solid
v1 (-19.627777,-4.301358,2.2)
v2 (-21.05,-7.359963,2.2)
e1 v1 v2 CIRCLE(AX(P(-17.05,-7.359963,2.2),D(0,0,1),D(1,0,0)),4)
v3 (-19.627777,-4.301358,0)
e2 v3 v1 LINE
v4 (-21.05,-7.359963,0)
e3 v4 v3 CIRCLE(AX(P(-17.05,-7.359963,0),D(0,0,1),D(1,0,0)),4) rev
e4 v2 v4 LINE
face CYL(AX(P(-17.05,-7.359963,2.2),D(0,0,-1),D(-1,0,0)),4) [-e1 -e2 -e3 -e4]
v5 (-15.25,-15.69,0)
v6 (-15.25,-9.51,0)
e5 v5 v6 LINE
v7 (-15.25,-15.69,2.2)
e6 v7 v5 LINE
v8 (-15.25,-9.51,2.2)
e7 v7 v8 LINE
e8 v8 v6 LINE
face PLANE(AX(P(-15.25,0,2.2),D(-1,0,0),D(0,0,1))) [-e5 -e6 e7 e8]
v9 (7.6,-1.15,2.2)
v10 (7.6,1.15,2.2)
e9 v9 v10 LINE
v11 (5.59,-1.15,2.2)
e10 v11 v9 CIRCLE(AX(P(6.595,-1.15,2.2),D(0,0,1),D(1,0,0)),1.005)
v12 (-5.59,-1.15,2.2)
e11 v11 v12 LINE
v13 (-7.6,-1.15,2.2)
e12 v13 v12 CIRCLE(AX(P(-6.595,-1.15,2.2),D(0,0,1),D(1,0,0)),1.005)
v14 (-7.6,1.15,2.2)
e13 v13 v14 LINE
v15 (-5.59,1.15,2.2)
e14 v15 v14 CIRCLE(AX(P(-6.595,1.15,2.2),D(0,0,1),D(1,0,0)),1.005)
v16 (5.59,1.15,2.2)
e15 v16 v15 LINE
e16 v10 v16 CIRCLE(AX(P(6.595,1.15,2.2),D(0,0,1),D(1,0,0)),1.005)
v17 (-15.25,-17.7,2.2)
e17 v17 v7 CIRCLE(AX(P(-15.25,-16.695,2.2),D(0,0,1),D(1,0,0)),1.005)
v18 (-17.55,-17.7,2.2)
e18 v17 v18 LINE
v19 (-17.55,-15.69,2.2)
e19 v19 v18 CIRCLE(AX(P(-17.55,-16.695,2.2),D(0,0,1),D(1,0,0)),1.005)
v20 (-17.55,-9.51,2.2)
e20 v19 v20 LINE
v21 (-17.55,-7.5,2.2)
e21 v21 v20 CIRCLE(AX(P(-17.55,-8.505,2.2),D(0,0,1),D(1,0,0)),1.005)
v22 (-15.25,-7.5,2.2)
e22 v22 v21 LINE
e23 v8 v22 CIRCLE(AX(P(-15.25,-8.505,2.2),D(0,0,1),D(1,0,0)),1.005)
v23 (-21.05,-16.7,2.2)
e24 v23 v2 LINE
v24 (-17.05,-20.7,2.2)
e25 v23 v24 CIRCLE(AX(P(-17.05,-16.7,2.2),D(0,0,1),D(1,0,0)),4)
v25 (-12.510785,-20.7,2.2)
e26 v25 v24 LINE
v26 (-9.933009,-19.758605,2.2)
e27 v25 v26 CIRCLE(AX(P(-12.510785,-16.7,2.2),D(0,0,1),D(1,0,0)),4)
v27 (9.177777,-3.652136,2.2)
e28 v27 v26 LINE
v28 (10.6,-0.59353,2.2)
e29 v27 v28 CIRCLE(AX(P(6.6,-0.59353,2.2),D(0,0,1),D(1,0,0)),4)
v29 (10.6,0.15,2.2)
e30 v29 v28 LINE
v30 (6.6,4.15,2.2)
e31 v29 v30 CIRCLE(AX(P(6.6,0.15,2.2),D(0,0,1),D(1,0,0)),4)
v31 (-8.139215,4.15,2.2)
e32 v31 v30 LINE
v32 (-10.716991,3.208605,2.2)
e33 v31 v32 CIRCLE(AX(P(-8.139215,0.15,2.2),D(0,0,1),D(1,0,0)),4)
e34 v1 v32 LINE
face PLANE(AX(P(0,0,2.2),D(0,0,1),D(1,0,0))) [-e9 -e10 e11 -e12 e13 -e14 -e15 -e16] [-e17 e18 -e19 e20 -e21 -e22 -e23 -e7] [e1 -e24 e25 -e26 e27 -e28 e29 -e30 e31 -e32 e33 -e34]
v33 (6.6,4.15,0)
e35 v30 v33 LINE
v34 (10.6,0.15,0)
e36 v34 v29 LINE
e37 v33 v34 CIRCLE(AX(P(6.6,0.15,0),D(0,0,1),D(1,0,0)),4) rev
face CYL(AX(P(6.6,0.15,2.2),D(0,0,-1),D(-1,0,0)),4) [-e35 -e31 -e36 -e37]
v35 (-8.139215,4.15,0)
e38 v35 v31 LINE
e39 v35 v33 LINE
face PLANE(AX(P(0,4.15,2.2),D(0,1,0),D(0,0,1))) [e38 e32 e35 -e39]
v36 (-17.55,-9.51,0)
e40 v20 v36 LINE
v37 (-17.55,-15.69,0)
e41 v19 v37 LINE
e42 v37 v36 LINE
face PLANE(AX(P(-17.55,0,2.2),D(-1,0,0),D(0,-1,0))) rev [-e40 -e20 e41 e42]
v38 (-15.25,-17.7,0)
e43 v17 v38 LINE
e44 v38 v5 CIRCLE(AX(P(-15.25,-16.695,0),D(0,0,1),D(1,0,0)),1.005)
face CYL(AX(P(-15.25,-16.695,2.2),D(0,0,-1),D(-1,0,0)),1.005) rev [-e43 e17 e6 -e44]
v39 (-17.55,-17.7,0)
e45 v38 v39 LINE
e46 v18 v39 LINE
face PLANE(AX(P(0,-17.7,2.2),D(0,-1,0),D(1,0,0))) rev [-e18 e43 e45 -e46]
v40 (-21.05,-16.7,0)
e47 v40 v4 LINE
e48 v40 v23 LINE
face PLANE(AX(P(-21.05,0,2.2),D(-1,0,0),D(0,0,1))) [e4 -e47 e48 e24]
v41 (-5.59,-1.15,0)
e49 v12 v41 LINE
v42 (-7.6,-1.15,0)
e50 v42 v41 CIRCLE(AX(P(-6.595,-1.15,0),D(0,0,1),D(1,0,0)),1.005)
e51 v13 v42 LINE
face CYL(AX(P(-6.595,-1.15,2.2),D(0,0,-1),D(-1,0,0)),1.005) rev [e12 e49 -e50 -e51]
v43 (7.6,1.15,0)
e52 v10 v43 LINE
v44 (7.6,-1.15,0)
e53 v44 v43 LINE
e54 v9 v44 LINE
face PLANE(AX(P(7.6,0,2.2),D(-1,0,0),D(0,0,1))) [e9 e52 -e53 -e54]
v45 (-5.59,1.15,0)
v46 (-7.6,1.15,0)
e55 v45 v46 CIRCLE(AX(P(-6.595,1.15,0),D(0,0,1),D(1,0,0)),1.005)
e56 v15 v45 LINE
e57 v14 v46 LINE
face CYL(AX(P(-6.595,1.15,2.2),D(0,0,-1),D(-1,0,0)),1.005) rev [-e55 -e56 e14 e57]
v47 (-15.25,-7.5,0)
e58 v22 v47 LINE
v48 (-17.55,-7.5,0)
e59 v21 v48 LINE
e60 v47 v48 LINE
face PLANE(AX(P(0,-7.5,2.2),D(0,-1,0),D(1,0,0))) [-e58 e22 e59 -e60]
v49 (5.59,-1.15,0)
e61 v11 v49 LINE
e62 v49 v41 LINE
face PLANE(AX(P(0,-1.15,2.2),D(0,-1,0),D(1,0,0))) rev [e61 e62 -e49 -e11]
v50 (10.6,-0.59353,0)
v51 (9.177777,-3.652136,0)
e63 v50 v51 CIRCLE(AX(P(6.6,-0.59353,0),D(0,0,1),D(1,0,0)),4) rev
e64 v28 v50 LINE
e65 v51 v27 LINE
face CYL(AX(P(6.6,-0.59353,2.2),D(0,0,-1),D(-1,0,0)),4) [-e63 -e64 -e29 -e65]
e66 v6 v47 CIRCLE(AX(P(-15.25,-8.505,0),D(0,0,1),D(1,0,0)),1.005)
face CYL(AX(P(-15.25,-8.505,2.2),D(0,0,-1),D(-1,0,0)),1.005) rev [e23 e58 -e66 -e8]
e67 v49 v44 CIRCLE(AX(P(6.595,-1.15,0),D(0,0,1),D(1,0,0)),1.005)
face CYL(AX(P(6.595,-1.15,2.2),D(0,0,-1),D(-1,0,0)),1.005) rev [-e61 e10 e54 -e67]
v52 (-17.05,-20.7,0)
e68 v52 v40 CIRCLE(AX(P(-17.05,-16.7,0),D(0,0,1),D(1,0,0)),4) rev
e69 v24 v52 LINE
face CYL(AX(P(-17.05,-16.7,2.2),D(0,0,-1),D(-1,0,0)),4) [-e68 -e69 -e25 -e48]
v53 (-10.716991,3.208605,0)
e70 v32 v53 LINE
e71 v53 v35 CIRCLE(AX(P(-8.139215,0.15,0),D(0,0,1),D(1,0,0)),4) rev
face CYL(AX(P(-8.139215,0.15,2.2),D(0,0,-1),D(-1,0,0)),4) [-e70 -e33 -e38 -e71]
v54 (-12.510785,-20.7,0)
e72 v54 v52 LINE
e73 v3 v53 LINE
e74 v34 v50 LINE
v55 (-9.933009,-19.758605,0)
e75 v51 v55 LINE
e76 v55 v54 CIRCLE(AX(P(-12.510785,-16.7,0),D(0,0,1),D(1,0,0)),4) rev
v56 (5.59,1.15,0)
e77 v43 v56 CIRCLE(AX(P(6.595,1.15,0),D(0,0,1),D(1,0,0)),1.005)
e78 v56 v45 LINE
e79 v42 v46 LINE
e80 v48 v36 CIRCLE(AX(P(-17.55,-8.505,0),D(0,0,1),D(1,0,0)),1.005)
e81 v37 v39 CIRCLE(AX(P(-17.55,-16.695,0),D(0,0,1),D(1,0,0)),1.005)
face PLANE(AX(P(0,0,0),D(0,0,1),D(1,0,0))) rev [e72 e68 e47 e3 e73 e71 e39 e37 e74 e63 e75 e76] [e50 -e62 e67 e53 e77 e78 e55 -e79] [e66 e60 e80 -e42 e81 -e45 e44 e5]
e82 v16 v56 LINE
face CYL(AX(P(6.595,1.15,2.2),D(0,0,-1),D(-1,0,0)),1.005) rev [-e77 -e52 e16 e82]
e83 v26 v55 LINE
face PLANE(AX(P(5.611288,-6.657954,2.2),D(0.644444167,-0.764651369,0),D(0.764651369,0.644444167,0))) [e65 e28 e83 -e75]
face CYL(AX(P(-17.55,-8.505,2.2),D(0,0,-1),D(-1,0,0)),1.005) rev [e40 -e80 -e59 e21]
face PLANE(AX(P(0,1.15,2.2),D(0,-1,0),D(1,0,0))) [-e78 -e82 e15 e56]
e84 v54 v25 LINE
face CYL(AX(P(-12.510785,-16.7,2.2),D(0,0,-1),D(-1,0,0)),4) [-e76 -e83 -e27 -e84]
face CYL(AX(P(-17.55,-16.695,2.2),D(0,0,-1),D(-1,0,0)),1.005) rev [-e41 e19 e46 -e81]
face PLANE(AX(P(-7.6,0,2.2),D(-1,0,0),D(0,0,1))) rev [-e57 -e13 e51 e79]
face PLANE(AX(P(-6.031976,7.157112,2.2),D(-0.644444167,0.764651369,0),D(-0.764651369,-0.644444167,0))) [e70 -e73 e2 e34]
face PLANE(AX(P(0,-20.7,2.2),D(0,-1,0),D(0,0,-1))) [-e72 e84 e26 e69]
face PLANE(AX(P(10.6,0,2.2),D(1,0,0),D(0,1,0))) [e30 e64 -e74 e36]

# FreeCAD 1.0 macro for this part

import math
import FreeCAD as App
import Part
import Sketcher

V = App.Vector


def edges_at(feature, points):
    """Names of the edges that pass closest to the given points."""
    edges = feature.Shape.Edges
    near = lambda p: min(range(len(edges)), key=lambda i: edges[i].distToShape(Part.Vertex(*p))[0])
    return sorted({f"Edge{near(p) + 1}" for p in points})


def add_polygon(sketch, points):
    """Adds a closed chain of lines whose ends are joined by coincident constraints."""
    first, n = sketch.GeometryCount, len(points)
    for a, b in zip(points, points[1:] + points[:1]):
        sketch.addGeometry(Part.LineSegment(App.Vector(*a, 0), App.Vector(*b, 0)), False)
    for i in range(n):
        sketch.addConstraint(Sketcher.Constraint("Coincident", first + i, 2, first + (i + 1) % n, 1))

doc = App.newDocument("Part")
body = doc.addObject("PartDesign::Body", "Body")

# Sketch on XY plane
sketch1 = body.newObject("Sketcher::SketchObject", "Sketch")
sketch1.AttachmentSupport = (doc.getObject("XY_Plane"), [""])
sketch1.MapMode = "FlatFace"
add_polygon(sketch1, [(10.6, 4.2), (-9.6, 4.2), (-21.1, -5.5), (-21.1, -20.7), (-11.1, -20.7), (10.6, -2.5)])  # lines 0-5
sketch1.addGeometry(Part.ArcOfCircle(Part.Circle(V(-15.2, -16.7, 0), V(0, 0, 1), 1), math.radians(0), math.radians(90)), False)  # 6
sketch1.addGeometry(Part.ArcOfCircle(Part.Circle(V(-15.2, -16.7, 0), V(0, 0, 1), 1), math.radians(-90), math.radians(0)), False)  # 7
sketch1.addGeometry(Part.LineSegment(V(-15.2, -17.7, 0), V(-17.6, -17.7, 0)), False)  # 8
sketch1.addGeometry(Part.ArcOfCircle(Part.Circle(V(-17.6, -16.7, 0), V(0, 0, 1), 1), math.radians(90), math.radians(270)), False)  # 9
sketch1.addGeometry(Part.LineSegment(V(-17.6, -15.7, 0), V(-17.6, -9.5, 0)), False)  # 10
sketch1.addGeometry(Part.ArcOfCircle(Part.Circle(V(-17.6, -8.5, 0), V(0, 0, 1), 1), math.radians(90), math.radians(270)), False)  # 11
sketch1.addGeometry(Part.LineSegment(V(-17.6, -7.5, 0), V(-15.2, -7.5, 0)), False)  # 12
sketch1.addGeometry(Part.ArcOfCircle(Part.Circle(V(-15.2, -8.5, 0), V(0, 0, 1), 1), math.radians(0), math.radians(90)), False)  # 13
sketch1.addGeometry(Part.ArcOfCircle(Part.Circle(V(-15.2, -8.5, 0), V(0, 0, 1), 1), math.radians(-90), math.radians(0)), False)  # 14
sketch1.addGeometry(Part.LineSegment(V(-15.2, -9.5, 0), V(-15.2, -15.7, 0)), False)  # 15
sketch1.addGeometry(Part.ArcOfCircle(Part.Circle(V(6.6, -1.1, 0), V(0, 0, 1), 1), math.radians(180), math.radians(360)), False)  # 16
sketch1.addGeometry(Part.LineSegment(V(5.6, -1.1, 0), V(-5.6, -1.1, 0)), False)  # 17
sketch1.addGeometry(Part.ArcOfCircle(Part.Circle(V(-6.6, -1.1, 0), V(0, 0, 1), 1), math.radians(180), math.radians(360)), False)  # 18
sketch1.addGeometry(Part.LineSegment(V(-7.6, -1.1, 0), V(-7.6, 1.1, 0)), False)  # 19
sketch1.addGeometry(Part.ArcOfCircle(Part.Circle(V(-6.6, 1.1, 0), V(0, 0, 1), 1), math.radians(0), math.radians(180)), False)  # 20
sketch1.addGeometry(Part.LineSegment(V(-5.6, 1.1, 0), V(5.6, 1.1, 0)), False)  # 21
sketch1.addGeometry(Part.ArcOfCircle(Part.Circle(V(6.6, 1.1, 0), V(0, 0, 1), 1), math.radians(0), math.radians(180)), False)  # 22
sketch1.addGeometry(Part.LineSegment(V(7.6, 1.1, 0), V(7.6, -1.1, 0)), False)  # 23
sketch1.addConstraint([
    Sketcher.Constraint("Tangent", 6, 1, 7, 2),
    Sketcher.Constraint("Tangent", 7, 1, 8, 1),
    Sketcher.Constraint("Tangent", 8, 2, 9, 2),
    Sketcher.Constraint("Coincident", 9, 1, 10, 1),
    Sketcher.Constraint("Coincident", 10, 2, 11, 2),
    Sketcher.Constraint("Tangent", 11, 1, 12, 1),
    Sketcher.Constraint("Tangent", 12, 2, 13, 2),
    Sketcher.Constraint("Tangent", 13, 1, 14, 2),
    Sketcher.Constraint("Coincident", 14, 1, 15, 1),
    Sketcher.Constraint("Coincident", 15, 2, 6, 2),
    Sketcher.Constraint("Coincident", 16, 1, 17, 1),
    Sketcher.Constraint("Coincident", 17, 2, 18, 2),
    Sketcher.Constraint("Tangent", 18, 1, 19, 1),
    Sketcher.Constraint("Tangent", 19, 2, 20, 2),
    Sketcher.Constraint("Coincident", 20, 1, 21, 1),
    Sketcher.Constraint("Coincident", 21, 2, 22, 2),
    Sketcher.Constraint("Tangent", 22, 1, 23, 1),
    Sketcher.Constraint("Tangent", 23, 2, 16, 2),
    Sketcher.Constraint("Horizontal", 0),
    Sketcher.Constraint("Vertical", 2),
    Sketcher.Constraint("Horizontal", 3),
    Sketcher.Constraint("Vertical", 5),
    Sketcher.Constraint("Horizontal", 8),
    Sketcher.Constraint("Vertical", 10),
    Sketcher.Constraint("Horizontal", 12),
    Sketcher.Constraint("Vertical", 15),
    Sketcher.Constraint("Horizontal", 17),
    Sketcher.Constraint("Vertical", 19),
    Sketcher.Constraint("Horizontal", 21),
    Sketcher.Constraint("Vertical", 23),
    Sketcher.Constraint("Equal", 6, 7),
    Sketcher.Constraint("Equal", 7, 9),
    Sketcher.Constraint("Equal", 9, 11),
    Sketcher.Constraint("Equal", 11, 13),
    Sketcher.Constraint("Equal", 13, 14),
    Sketcher.Constraint("Equal", 14, 16),
    Sketcher.Constraint("Equal", 16, 18),
    Sketcher.Constraint("Equal", 18, 20),
    Sketcher.Constraint("Equal", 20, 22),
    Sketcher.Constraint("Symmetric", 16, 3, 20, 3, -1, 1),
    Sketcher.Constraint("Parallel", 1, 4),
    Sketcher.Constraint("Horizontal", 16, 3, 18, 3),
    Sketcher.Constraint("Horizontal", 20, 3, 22, 3),
    Sketcher.Constraint("Horizontal", 9, 3, 6, 1),
    Sketcher.Constraint("Horizontal", 14, 3, 13, 1),
    Sketcher.Constraint("Horizontal", 18, 3, 16, 1),
    Sketcher.Constraint("Horizontal", 19, 2, 20, 1),
    Sketcher.Constraint("Vertical", 9, 3, 11, 3),
    Sketcher.Constraint("Vertical", 7, 3, 13, 3),
    Sketcher.Constraint("Vertical", 8, 2, 9, 1),
    Sketcher.Constraint("Vertical", 12, 2, 14, 1),
    Sketcher.Constraint("Equal", 12, 19),
    Sketcher.Constraint("DistanceX", 3, 1, 3, 2, 10.0),
    Sketcher.Constraint("DistanceX", 0, 2, 0, 1, 20.2),
    Sketcher.Constraint("DistanceX", 8, 2, 8, 1, 2.3),
    Sketcher.Constraint("DistanceY", 2, 2, 2, 1, 15.2),
    Sketcher.Constraint("Radius", 6, 1.005),
    Sketcher.Constraint("DistanceY", 20, 3, 0, 2, 3.0),
    Sketcher.Constraint("DistanceY", 3, 2, 7, 1, 3.0),
    Sketcher.Constraint("DistanceY", 11, 1, 1, 2, 2.0),
    Sketcher.Constraint("DistanceX", 0, 2, 18, 1, 2.0),
    Sketcher.Constraint("DistanceX", 22, 1, 5, 2, 3.0),
    Sketcher.Constraint("DistanceY", 1, 2, -1, 1, 5.5),
    Sketcher.Constraint("DistanceX", 1, 2, 11, 3, 3.5),
    Sketcher.Constraint("DistanceX", 6, 3, -1, 1, 15.25),
])
pad1 = body.newObject("PartDesign::Pad", "Pad")
pad1.Profile = sketch1
pad1.Length = 2.2
doc.recompute()

fillet = body.newObject("PartDesign::Fillet", "Fillet")
fillet.Base = (pad1, edges_at(pad1, [
    (-9.6, 4.15, 1.1),
    (10.6, 4.15, 1.1),
    (10.6, -2.453, 1.1),
    (-11.05, -20.7, 1.1),
    (-21.05, -20.7, 1.1),
    (-21.05, -5.5, 1.1),
]))
fillet.Radius = 4

doc.recompute()
